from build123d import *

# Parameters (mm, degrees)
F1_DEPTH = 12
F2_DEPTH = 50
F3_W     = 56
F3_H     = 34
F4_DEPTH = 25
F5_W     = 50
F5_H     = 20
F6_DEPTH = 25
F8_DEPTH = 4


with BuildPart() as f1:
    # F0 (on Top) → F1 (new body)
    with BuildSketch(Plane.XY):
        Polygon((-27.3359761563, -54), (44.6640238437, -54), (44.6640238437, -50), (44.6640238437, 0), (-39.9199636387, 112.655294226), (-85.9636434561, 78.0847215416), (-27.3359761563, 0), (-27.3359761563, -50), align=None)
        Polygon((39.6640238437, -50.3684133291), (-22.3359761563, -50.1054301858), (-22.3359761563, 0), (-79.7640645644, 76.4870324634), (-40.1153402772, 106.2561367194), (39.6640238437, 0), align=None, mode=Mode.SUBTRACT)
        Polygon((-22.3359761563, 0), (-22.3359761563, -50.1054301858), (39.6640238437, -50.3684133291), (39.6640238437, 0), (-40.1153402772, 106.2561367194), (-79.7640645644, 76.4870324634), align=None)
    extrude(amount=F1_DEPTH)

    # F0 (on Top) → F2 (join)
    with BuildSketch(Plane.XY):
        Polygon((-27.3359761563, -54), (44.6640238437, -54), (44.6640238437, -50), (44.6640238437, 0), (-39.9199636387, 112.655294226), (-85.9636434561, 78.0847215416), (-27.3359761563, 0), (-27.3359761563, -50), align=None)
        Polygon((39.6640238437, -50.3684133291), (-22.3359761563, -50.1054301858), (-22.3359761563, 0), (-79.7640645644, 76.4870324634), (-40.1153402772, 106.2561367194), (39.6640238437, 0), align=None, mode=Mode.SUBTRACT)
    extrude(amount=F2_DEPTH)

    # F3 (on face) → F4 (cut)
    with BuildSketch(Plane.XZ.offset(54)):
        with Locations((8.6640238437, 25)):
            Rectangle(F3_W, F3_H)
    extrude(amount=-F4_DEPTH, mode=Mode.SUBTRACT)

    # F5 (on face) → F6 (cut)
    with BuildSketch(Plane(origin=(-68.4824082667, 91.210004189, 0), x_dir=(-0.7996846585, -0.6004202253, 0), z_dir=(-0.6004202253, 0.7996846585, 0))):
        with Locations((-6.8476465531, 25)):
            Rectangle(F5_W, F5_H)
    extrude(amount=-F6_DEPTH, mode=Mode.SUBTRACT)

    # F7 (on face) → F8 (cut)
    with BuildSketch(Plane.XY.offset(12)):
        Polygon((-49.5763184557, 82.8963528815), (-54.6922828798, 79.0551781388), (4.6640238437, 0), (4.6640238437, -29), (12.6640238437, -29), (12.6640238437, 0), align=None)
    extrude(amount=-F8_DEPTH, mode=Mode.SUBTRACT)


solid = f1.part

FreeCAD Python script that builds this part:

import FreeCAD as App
import Part
import Sketcher

V = App.Vector
Q = App.Units.Quantity

doc = App.newDocument("Part")
body = doc.addObject("PartDesign::Body", "Body")

# Sketch on XY plane
sketch1 = body.newObject("Sketcher::SketchObject", "Sketch")
sketch1.AttachmentSupport = (doc.getObject("XY_Plane"), [""])
sketch1.MapMode = "FlatFace"
sketch1.addGeometry(Part.LineSegment(V(-27, -54, 0), V(45, -54, 0)), False)
sketch1.addGeometry(Part.LineSegment(V(45, -54, 0), V(45, 0, 0)), False)
sketch1.addGeometry(Part.LineSegment(V(45, 0, 0), V(-40, 113, 0)), False)
sketch1.addGeometry(Part.LineSegment(V(-40, 113, 0), V(-86, 78, 0)), False)
sketch1.addGeometry(Part.LineSegment(V(-86, 78, 0), V(-27, 0, 0)), False)
sketch1.addGeometry(Part.LineSegment(V(-27, 0, 0), V(-27, -54, 0)), False)
sketch1.addConstraint(Sketcher.Constraint("Coincident", 0, 2, 1, 1))
sketch1.addConstraint(Sketcher.Constraint("Coincident", 1, 2, 2, 1))
sketch1.addConstraint(Sketcher.Constraint("Coincident", 2, 2, 3, 1))
sketch1.addConstraint(Sketcher.Constraint("Coincident", 3, 2, 4, 1))
sketch1.addConstraint(Sketcher.Constraint("Coincident", 4, 2, 5, 1))
sketch1.addConstraint(Sketcher.Constraint("Coincident", 5, 2, 0, 1))
sketch1.addConstraint(Sketcher.Constraint("Horizontal", 0))
sketch1.addConstraint(Sketcher.Constraint("Vertical", 1))
sketch1.addConstraint(Sketcher.Constraint("Vertical", 5))
sketch1.addConstraint(Sketcher.Constraint("PointOnObject", 1, 2, -1))
sketch1.addConstraint(Sketcher.Constraint("PointOnObject", 4, 2, -1))
sketch1.addConstraint(Sketcher.Constraint("Perpendicular", 2, 3))
sketch1.addConstraint(Sketcher.Constraint("Perpendicular", 3, 4))
sketch1.addConstraint(Sketcher.Constraint("DistanceX", 0, 1, 0, 2, Q("72 mm")))
sketch1.addConstraint(Sketcher.Constraint("DistanceY", 1, 1, 1, 2, Q("54 mm")))
sketch1.addConstraint(Sketcher.Constraint("Angle", 2, Q("126.9 deg")))
sketch1.addConstraint(Sketcher.Constraint("Distance", 4, Q("97.644391 mm")))
sketch1.addConstraint(Sketcher.Constraint("DistanceX", -1, 1, 0, 2, Q("44.664024 mm")))
pad1 = body.newObject("PartDesign::Pad", "Pad")
pad1.Profile = sketch1
pad1.Length = 12

# Sketch on XY plane
sketch2 = body.newObject("Sketcher::SketchObject", "Sketch001")
sketch2.AttachmentSupport = (doc.getObject("XY_Plane"), [""])
sketch2.MapMode = "FlatFace"
sketch2.addGeometry(Part.LineSegment(V(-27, -54, 0), V(45, -54, 0)), False)
sketch2.addGeometry(Part.LineSegment(V(45, -54, 0), V(45, 0, 0)), False)
sketch2.addGeometry(Part.LineSegment(V(45, 0, 0), V(-40, 113, 0)), False)
sketch2.addGeometry(Part.LineSegment(V(-40, 113, 0), V(-86, 78, 0)), False)
sketch2.addGeometry(Part.LineSegment(V(-86, 78, 0), V(-27, 0, 0)), False)
sketch2.addGeometry(Part.LineSegment(V(-27, 0, 0), V(-27, -54, 0)), False)
sketch2.addGeometry(Part.LineSegment(V(40, 0, 0), V(40, -50, 0)), False)
sketch2.addGeometry(Part.LineSegment(V(40, -50, 0), V(-22, -50, 0)), False)
sketch2.addGeometry(Part.LineSegment(V(-22, -50, 0), V(-22, 0, 0)), False)
sketch2.addGeometry(Part.LineSegment(V(-22, 0, 0), V(-80, 76, 0)), False)
sketch2.addGeometry(Part.LineSegment(V(-80, 76, 0), V(-40, 106, 0)), False)
sketch2.addGeometry(Part.LineSegment(V(-40, 106, 0), V(40, 0, 0)), False)
sketch2.addConstraint(Sketcher.Constraint("Coincident", 0, 2, 1, 1))
sketch2.addConstraint(Sketcher.Constraint("Coincident", 1, 2, 2, 1))
sketch2.addConstraint(Sketcher.Constraint("Coincident", 2, 2, 3, 1))
sketch2.addConstraint(Sketcher.Constraint("Coincident", 3, 2, 4, 1))
sketch2.addConstraint(Sketcher.Constraint("Coincident", 4, 2, 5, 1))
sketch2.addConstraint(Sketcher.Constraint("Coincident", 5, 2, 0, 1))
sketch2.addConstraint(Sketcher.Constraint("Coincident", 6, 2, 7, 1))
sketch2.addConstraint(Sketcher.Constraint("Coincident", 7, 2, 8, 1))
sketch2.addConstraint(Sketcher.Constraint("Coincident", 8, 2, 9, 1))
sketch2.addConstraint(Sketcher.Constraint("Coincident", 9, 2, 10, 1))
sketch2.addConstraint(Sketcher.Constraint("Coincident", 10, 2, 11, 1))
sketch2.addConstraint(Sketcher.Constraint("Coincident", 11, 2, 6, 1))
sketch2.addConstraint(Sketcher.Constraint("Horizontal", 0))
sketch2.addConstraint(Sketcher.Constraint("Vertical", 1))
sketch2.addConstraint(Sketcher.Constraint("Vertical", 5))
sketch2.addConstraint(Sketcher.Constraint("Vertical", 6))
sketch2.addConstraint(Sketcher.Constraint("Vertical", 8))
sketch2.addConstraint(Sketcher.Constraint("PointOnObject", 1, 2, -1))
sketch2.addConstraint(Sketcher.Constraint("PointOnObject", 4, 2, -1))
sketch2.addConstraint(Sketcher.Constraint("PointOnObject", 8, 2, -1))
sketch2.addConstraint(Sketcher.Constraint("PointOnObject", 11, 2, -1))
sketch2.addConstraint(Sketcher.Constraint("Perpendicular", 2, 3))
sketch2.addConstraint(Sketcher.Constraint("Perpendicular", 3, 4))
sketch2.addConstraint(Sketcher.Constraint("Parallel", 4, 9))
sketch2.addConstraint(Sketcher.Constraint("Perpendicular", 9, 10))
sketch2.addConstraint(Sketcher.Constraint("Perpendicular", 10, 11))
sketch2.addConstraint(Sketcher.Constraint("DistanceX", 0, 1, 0, 2, Q("72 mm")))
sketch2.addConstraint(Sketcher.Constraint("DistanceY", 1, 1, 1, 2, Q("54 mm")))
sketch2.addConstraint(Sketcher.Constraint("Angle", 2, Q("126.9 deg")))
sketch2.addConstraint(Sketcher.Constraint("DistanceX", 6, 2, 0, 2, Q("5 mm")))
sketch2.addConstraint(Sketcher.Constraint("DistanceX", 5, 2, 7, 2, Q("5 mm")))
sketch2.addConstraint(Sketcher.Constraint("DistanceY", 8, 1, 8, 2, Q("50.10543 mm")))
sketch2.addConstraint(Sketcher.Constraint("DistanceX", 9, 2, 2, 2, Q("39.844101 mm")))
sketch2.addConstraint(Sketcher.Constraint("Distance", 4, Q("97.644391 mm")))
sketch2.addConstraint(Sketcher.Constraint("DistanceY", 6, 2, 6, 1, Q("50.368413 mm")))
sketch2.addConstraint(Sketcher.Constraint("DistanceX", 10, 2, -1, 1, Q("40.11534 mm")))
pad2 = body.newObject("PartDesign::Pad", "Pad001")
pad2.Profile = sketch2
pad2.Length = 50

# Sketch on XZ plane
sketch3 = body.newObject("Sketcher::SketchObject", "Sketch002")
sketch3.AttachmentSupport = (doc.getObject("XZ_Plane"), [""])
sketch3.MapMode = "FlatFace"
sketch3.AttachmentOffset = App.Placement(V(0, 0, 54), App.Rotation())
sketch3.addGeometry(Part.LineSegment(V(-19, 42, 0), V(-19, 8, 0)), False)
sketch3.addGeometry(Part.LineSegment(V(-19, 8, 0), V(37, 8, 0)), False)
sketch3.addGeometry(Part.LineSegment(V(37, 8, 0), V(37, 42, 0)), False)
sketch3.addGeometry(Part.LineSegment(V(37, 42, 0), V(-19, 42, 0)), False)
sketch3.addConstraint(Sketcher.Constraint("Coincident", 0, 2, 1, 1))
sketch3.addConstraint(Sketcher.Constraint("Coincident", 1, 2, 2, 1))
sketch3.addConstraint(Sketcher.Constraint("Coincident", 2, 2, 3, 1))
sketch3.addConstraint(Sketcher.Constraint("Coincident", 3, 2, 0, 1))
sketch3.addConstraint(Sketcher.Constraint("Vertical", 0))
sketch3.addConstraint(Sketcher.Constraint("Horizontal", 1))
sketch3.addConstraint(Sketcher.Constraint("Vertical", 2))
sketch3.addConstraint(Sketcher.Constraint("Horizontal", 3))
sketch3.addConstraint(Sketcher.Constraint("DistanceX", 1, 1, 1, 2, Q("56 mm")))
sketch3.addConstraint(Sketcher.Constraint("DistanceY", 0, 2, 0, 1, Q("34 mm")))
sketch3.addConstraint(Sketcher.Constraint("DistanceY", -1, 1, 0, 2, Q("8 mm")))
sketch3.addConstraint(Sketcher.Constraint("DistanceX", 0, 2, -1, 1, Q("19.335976 mm")))
pocket1 = body.newObject("PartDesign::Pocket", "Pocket")
pocket1.Profile = sketch3
pocket1.Length = 25

# Sketch on an angled plane
sketch4 = body.newObject("Sketcher::SketchObject", "Sketch003")
sketch4.Placement = App.Placement(V(-68.482408, 91.210004, 0), App.Rotation(V(-0.799684659, -0.600420225, 0), V(0, 0, 1), V(-0.600420225, 0.799684659, 0), "ZXY"))
sketch4.addGeometry(Part.LineSegment(V(-32, 35, 0), V(-32, 15, 0)), False)
sketch4.addGeometry(Part.LineSegment(V(-32, 15, 0), V(18, 15, 0)), False)
sketch4.addGeometry(Part.LineSegment(V(18, 15, 0), V(18, 35, 0)), False)
sketch4.addGeometry(Part.LineSegment(V(18, 35, 0), V(-32, 35, 0)), False)
sketch4.addConstraint(Sketcher.Constraint("Coincident", 0, 2, 1, 1))
sketch4.addConstraint(Sketcher.Constraint("Coincident", 1, 2, 2, 1))
sketch4.addConstraint(Sketcher.Constraint("Coincident", 2, 2, 3, 1))
sketch4.addConstraint(Sketcher.Constraint("Coincident", 3, 2, 0, 1))
sketch4.addConstraint(Sketcher.Constraint("Vertical", 0))
sketch4.addConstraint(Sketcher.Constraint("Horizontal", 1))
sketch4.addConstraint(Sketcher.Constraint("Vertical", 2))
sketch4.addConstraint(Sketcher.Constraint("Horizontal", 3))
sketch4.addConstraint(Sketcher.Constraint("DistanceX", 1, 1, 1, 2, Q("50 mm")))
sketch4.addConstraint(Sketcher.Constraint("DistanceY", 0, 2, 0, 1, Q("20 mm")))
sketch4.addConstraint(Sketcher.Constraint("DistanceY", -1, 1, 0, 2, Q("15 mm")))
sketch4.addConstraint(Sketcher.Constraint("DistanceX", 0, 2, -1, 1, Q("31.847647 mm")))
pocket2 = body.newObject("PartDesign::Pocket", "Pocket001")
pocket2.Profile = sketch4
pocket2.Length = 25

# Sketch on XY plane
sketch5 = body.newObject("Sketcher::SketchObject", "Sketch004")
sketch5.AttachmentSupport = (doc.getObject("XY_Plane"), [""])
sketch5.MapMode = "FlatFace"
sketch5.AttachmentOffset = App.Placement(V(0, 0, 12), App.Rotation())
sketch5.addGeometry(Part.LineSegment(V(-50, 83, 0), V(-55, 79, 0)), False)
sketch5.addGeometry(Part.LineSegment(V(-55, 79, 0), V(5, 0, 0)), False)
sketch5.addGeometry(Part.LineSegment(V(5, 0, 0), V(5, -29, 0)), False)
sketch5.addGeometry(Part.LineSegment(V(5, -29, 0), V(13, -29, 0)), False)
sketch5.addGeometry(Part.LineSegment(V(13, -29, 0), V(13, 0, 0)), False)
sketch5.addGeometry(Part.LineSegment(V(13, 0, 0), V(-50, 83, 0)), False)
sketch5.addConstraint(Sketcher.Constraint("Coincident", 0, 2, 1, 1))
sketch5.addConstraint(Sketcher.Constraint("Coincident", 1, 2, 2, 1))
sketch5.addConstraint(Sketcher.Constraint("Coincident", 2, 2, 3, 1))
sketch5.addConstraint(Sketcher.Constraint("Coincident", 3, 2, 4, 1))
sketch5.addConstraint(Sketcher.Constraint("Coincident", 4, 2, 5, 1))
sketch5.addConstraint(Sketcher.Constraint("Coincident", 5, 2, 0, 1))
sketch5.addConstraint(Sketcher.Constraint("Vertical", 2))
sketch5.addConstraint(Sketcher.Constraint("Horizontal", 3))
sketch5.addConstraint(Sketcher.Constraint("Vertical", 4))
sketch5.addConstraint(Sketcher.Constraint("PointOnObject", 1, 2, -1))
sketch5.addConstraint(Sketcher.Constraint("PointOnObject", 4, 2, -1))
sketch5.addConstraint(Sketcher.Constraint("Perpendicular", 0, 1))
sketch5.addConstraint(Sketcher.Constraint("Parallel", 1, 5))
sketch5.addConstraint(Sketcher.Constraint("DistanceX", 3, 1, 3, 2, Q("8 mm")))
sketch5.addConstraint(Sketcher.Constraint("DistanceY", 2, 2, 2, 1, Q("29 mm")))
sketch5.addConstraint(Sketcher.Constraint("Angle", 0, Q("-143.1 deg")))
sketch5.addConstraint(Sketcher.Constraint("Distance", 5, Q("103.661302 mm")))
sketch5.addConstraint(Sketcher.Constraint("DistanceX", 5, 2, -1, 1, Q("49.576318 mm")))
pocket3 = body.newObject("PartDesign::Pocket", "Pocket002")
pocket3.Profile = sketch5
pocket3.Length = 4

doc.recompute()
